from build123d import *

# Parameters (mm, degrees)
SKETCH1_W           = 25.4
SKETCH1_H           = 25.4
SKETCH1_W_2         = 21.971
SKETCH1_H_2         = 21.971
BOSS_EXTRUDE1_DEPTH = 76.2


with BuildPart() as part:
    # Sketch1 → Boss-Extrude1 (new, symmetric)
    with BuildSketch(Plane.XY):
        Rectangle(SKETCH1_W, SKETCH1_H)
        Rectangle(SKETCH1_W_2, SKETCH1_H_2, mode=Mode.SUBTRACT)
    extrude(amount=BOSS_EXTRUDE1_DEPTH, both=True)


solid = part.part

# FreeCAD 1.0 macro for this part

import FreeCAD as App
import Part
import Sketcher
from FreeCAD import Vector
Q = App.Units.Quantity


def add_polygon(sketch, points):
    """Adds a closed chain of lines whose ends are joined by coincident constraints."""
    first, n = sketch.GeometryCount, len(points)
    for a, b in zip(points, points[1:] + points[:1]):
        sketch.addGeometry(Part.LineSegment(App.Vector(*a, 0), App.Vector(*b, 0)), False)
    for i in range(n):
        sketch.addConstraint(Sketcher.Constraint("Coincident", first + i, 2, first + (i + 1) % n, 1))

doc = App.newDocument("Part")
body = doc.addObject("PartDesign::Body", "Body")

sketch1 = body.newObject("Sketcher::SketchObject", "Sketch")
sketch1.AttachmentSupport = (doc.getObject("XY_Plane"), [""])
sketch1.MapMode = "FlatFace"
add_polygon(sketch1, [(-12.7, 12.7), (-12.7, -12.7), (12.7, -12.7), (12.7, 12.7)])
add_polygon(sketch1, [(10.9855, -10.9855), (-10.9855, -10.9855), (-10.9855, 10.9855), (10.9855, 10.9855)])
sketch1.addConstraint(Sketcher.Constraint("Vertical", 0))
sketch1.addConstraint(Sketcher.Constraint("Horizontal", 1))
sketch1.addConstraint(Sketcher.Constraint("Vertical", 2))
sketch1.addConstraint(Sketcher.Constraint("Horizontal", 3))
sketch1.addConstraint(Sketcher.Constraint("Horizontal", 4))
sketch1.addConstraint(Sketcher.Constraint("Vertical", 5))
sketch1.addConstraint(Sketcher.Constraint("Horizontal", 6))
sketch1.addConstraint(Sketcher.Constraint("Vertical", 7))
sketch1.addConstraint(Sketcher.Constraint("Symmetric", 0, 2, 2, 2, -1, 1))
sketch1.addConstraint(Sketcher.Constraint("Symmetric", 4, 2, 6, 2, -1, 1))
sketch1.addConstraint(Sketcher.Constraint("Equal", 3, 0))
sketch1.addConstraint(Sketcher.Constraint("Equal", 6, 5))
sketch1.addConstraint(Sketcher.Constraint("DistanceX", 1, 1, 1, 2, Q("1 in")))
sketch1.addConstraint(Sketcher.Constraint("DistanceX", 4, 2, 4, 1, Q("0.865 in")))
pad1 = body.newObject("PartDesign::Pad", "Pad")
pad1.Profile = sketch1
pad1.Length = Q("6 in")
pad1.Midplane = True

doc.recompute()
